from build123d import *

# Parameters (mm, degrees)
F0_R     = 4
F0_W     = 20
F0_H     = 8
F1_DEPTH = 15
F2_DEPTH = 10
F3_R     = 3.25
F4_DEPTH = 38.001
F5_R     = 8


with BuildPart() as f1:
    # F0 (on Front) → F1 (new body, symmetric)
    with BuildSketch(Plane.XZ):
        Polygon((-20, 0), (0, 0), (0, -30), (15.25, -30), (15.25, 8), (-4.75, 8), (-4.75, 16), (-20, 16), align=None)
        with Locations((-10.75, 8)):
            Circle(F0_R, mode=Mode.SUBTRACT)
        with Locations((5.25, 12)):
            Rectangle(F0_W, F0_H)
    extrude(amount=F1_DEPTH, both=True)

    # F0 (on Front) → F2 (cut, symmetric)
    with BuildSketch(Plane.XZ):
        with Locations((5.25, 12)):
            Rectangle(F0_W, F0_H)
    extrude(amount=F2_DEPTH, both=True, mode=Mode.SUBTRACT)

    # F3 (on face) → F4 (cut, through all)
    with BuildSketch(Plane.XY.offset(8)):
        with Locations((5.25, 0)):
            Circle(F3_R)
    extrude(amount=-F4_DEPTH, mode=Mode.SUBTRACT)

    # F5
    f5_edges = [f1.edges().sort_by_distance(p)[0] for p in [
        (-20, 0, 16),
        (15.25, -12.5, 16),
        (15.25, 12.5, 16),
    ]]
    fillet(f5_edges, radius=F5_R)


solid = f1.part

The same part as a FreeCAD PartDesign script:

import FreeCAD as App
import Part
import Sketcher

V = App.Vector
Q = App.Units.Quantity


def edges_at(feature, points):
    """Names of the edges that pass closest to the given points."""
    edges = feature.Shape.Edges
    near = lambda p: min(range(len(edges)), key=lambda i: edges[i].distToShape(Part.Vertex(*p))[0])
    return sorted({f"Edge{near(p) + 1}" for p in points})

doc = App.newDocument("Part")
body = doc.addObject("PartDesign::Body", "Body")

# Sketch on XZ plane
sketch1 = body.newObject("Sketcher::SketchObject", "Sketch")
sketch1.AttachmentSupport = (doc.getObject("XZ_Plane"), [""])
sketch1.MapMode = "FlatFace"
sketch1.addGeometry([
    Part.LineSegment(V(-20, 0, 0), V(0, 0, 0)),  # 0
    Part.LineSegment(V(0, 0, 0), V(0, -30, 0)),  # 1
    Part.LineSegment(V(0, -30, 0), V(15.2, -30, 0)),  # 2
    Part.LineSegment(V(15.2, -30, 0), V(15.2, 16, 0)),  # 3
    Part.LineSegment(V(15.2, 16, 0), V(-20, 16, 0)),  # 4
    Part.LineSegment(V(-20, 16, 0), V(-20, 0, 0)),  # 5
    Part.Circle(V(-10.8, 8, 0), V(0, 0, 1), 4),  # 6
], False)
sketch1.addConstraint([
    Sketcher.Constraint("Coincident", 0, 2, 1, 1),
    Sketcher.Constraint("Coincident", 1, 2, 2, 1),
    Sketcher.Constraint("Coincident", 2, 2, 3, 1),
    Sketcher.Constraint("Coincident", 3, 2, 4, 1),
    Sketcher.Constraint("Coincident", 4, 2, 5, 1),
    Sketcher.Constraint("Coincident", 5, 2, 0, 1),
    Sketcher.Constraint("Horizontal", 0),
    Sketcher.Constraint("Vertical", 1),
    Sketcher.Constraint("Horizontal", 2),
    Sketcher.Constraint("Vertical", 3),
    Sketcher.Constraint("Horizontal", 4),
    Sketcher.Constraint("Vertical", 5),
    Sketcher.Constraint("Coincident", 0, 2, -1, 1),
    Sketcher.Constraint("Diameter", 6, Q("8 mm")),
    Sketcher.Constraint("DistanceX", 0, 1, 0, 2, Q("20 mm")),
    Sketcher.Constraint("DistanceY", 1, 2, 1, 1, Q("30 mm")),
    Sketcher.Constraint("DistanceY", 3, 1, 3, 2, Q("46 mm")),
    Sketcher.Constraint("DistanceY", -1, 1, 6, 3, Q("8 mm")),
    Sketcher.Constraint("DistanceX", 6, 3, 2, 2, Q("26 mm")),
    Sketcher.Constraint("DistanceX", 2, 1, 2, 2, Q("15.25 mm")),
])
pad1 = body.newObject("PartDesign::Pad", "Pad")
pad1.Profile = sketch1
pad1.Length = 30
pad1.Midplane = True

# Sketch on XZ plane
sketch2 = body.newObject("Sketcher::SketchObject", "Sketch001")
sketch2.AttachmentSupport = (doc.getObject("XZ_Plane"), [""])
sketch2.MapMode = "FlatFace"
sketch2.addGeometry([
    Part.LineSegment(V(-5, 16, 0), V(-5, 8, 0)),
    Part.LineSegment(V(-5, 8, 0), V(15, 8, 0)),
    Part.LineSegment(V(15, 8, 0), V(15, 16, 0)),
    Part.LineSegment(V(15, 16, 0), V(-5, 16, 0)),
], False)
sketch2.addConstraint([
    Sketcher.Constraint("Coincident", 0, 2, 1, 1),
    Sketcher.Constraint("Coincident", 1, 2, 2, 1),
    Sketcher.Constraint("Coincident", 2, 2, 3, 1),
    Sketcher.Constraint("Coincident", 3, 2, 0, 1),
    Sketcher.Constraint("Vertical", 0),
    Sketcher.Constraint("Horizontal", 1),
    Sketcher.Constraint("Vertical", 2),
    Sketcher.Constraint("Horizontal", 3),
    Sketcher.Constraint("DistanceX", 1, 1, 1, 2, Q("20 mm")),
    Sketcher.Constraint("DistanceY", 0, 2, 0, 1, Q("8 mm")),
    Sketcher.Constraint("DistanceY", -1, 1, 0, 2, Q("8 mm")),
    Sketcher.Constraint("DistanceX", 0, 2, -1, 1, Q("4.75 mm")),
])
pocket1 = body.newObject("PartDesign::Pocket", "Pocket")
pocket1.Profile = sketch2
pocket1.Length = 20
pocket1.Midplane = True

# Sketch on XY plane
sketch3 = body.newObject("Sketcher::SketchObject", "Sketch002")
sketch3.AttachmentSupport = (doc.getObject("XY_Plane"), [""])
sketch3.MapMode = "FlatFace"
sketch3.AttachmentOffset = App.Placement(V(0, 0, 8), App.Rotation())
sketch3.addGeometry(Part.Circle(V(5.2, 0, 0), V(0, 0, 1), 3.2), False)
sketch3.addConstraint([
    Sketcher.Constraint("PointOnObject", 0, 3, -1),
    Sketcher.Constraint("Diameter", 0, Q("6.5 mm")),
    Sketcher.Constraint("DistanceX", -1, 1, 0, 3, Q("5.25 mm")),
])
pocket2 = body.newObject("PartDesign::Pocket", "Pocket001")
pocket2.Profile = sketch3
pocket2.Type = "ThroughAll"
doc.recompute()

fillet = body.newObject("PartDesign::Fillet", "Fillet")
fillet.Base = (pocket2, edges_at(pocket2, [(-20, 0, 16), (15.25, -12.5, 16), (15.25, 12.5, 16)]))
fillet.Radius = 8

doc.recompute()
